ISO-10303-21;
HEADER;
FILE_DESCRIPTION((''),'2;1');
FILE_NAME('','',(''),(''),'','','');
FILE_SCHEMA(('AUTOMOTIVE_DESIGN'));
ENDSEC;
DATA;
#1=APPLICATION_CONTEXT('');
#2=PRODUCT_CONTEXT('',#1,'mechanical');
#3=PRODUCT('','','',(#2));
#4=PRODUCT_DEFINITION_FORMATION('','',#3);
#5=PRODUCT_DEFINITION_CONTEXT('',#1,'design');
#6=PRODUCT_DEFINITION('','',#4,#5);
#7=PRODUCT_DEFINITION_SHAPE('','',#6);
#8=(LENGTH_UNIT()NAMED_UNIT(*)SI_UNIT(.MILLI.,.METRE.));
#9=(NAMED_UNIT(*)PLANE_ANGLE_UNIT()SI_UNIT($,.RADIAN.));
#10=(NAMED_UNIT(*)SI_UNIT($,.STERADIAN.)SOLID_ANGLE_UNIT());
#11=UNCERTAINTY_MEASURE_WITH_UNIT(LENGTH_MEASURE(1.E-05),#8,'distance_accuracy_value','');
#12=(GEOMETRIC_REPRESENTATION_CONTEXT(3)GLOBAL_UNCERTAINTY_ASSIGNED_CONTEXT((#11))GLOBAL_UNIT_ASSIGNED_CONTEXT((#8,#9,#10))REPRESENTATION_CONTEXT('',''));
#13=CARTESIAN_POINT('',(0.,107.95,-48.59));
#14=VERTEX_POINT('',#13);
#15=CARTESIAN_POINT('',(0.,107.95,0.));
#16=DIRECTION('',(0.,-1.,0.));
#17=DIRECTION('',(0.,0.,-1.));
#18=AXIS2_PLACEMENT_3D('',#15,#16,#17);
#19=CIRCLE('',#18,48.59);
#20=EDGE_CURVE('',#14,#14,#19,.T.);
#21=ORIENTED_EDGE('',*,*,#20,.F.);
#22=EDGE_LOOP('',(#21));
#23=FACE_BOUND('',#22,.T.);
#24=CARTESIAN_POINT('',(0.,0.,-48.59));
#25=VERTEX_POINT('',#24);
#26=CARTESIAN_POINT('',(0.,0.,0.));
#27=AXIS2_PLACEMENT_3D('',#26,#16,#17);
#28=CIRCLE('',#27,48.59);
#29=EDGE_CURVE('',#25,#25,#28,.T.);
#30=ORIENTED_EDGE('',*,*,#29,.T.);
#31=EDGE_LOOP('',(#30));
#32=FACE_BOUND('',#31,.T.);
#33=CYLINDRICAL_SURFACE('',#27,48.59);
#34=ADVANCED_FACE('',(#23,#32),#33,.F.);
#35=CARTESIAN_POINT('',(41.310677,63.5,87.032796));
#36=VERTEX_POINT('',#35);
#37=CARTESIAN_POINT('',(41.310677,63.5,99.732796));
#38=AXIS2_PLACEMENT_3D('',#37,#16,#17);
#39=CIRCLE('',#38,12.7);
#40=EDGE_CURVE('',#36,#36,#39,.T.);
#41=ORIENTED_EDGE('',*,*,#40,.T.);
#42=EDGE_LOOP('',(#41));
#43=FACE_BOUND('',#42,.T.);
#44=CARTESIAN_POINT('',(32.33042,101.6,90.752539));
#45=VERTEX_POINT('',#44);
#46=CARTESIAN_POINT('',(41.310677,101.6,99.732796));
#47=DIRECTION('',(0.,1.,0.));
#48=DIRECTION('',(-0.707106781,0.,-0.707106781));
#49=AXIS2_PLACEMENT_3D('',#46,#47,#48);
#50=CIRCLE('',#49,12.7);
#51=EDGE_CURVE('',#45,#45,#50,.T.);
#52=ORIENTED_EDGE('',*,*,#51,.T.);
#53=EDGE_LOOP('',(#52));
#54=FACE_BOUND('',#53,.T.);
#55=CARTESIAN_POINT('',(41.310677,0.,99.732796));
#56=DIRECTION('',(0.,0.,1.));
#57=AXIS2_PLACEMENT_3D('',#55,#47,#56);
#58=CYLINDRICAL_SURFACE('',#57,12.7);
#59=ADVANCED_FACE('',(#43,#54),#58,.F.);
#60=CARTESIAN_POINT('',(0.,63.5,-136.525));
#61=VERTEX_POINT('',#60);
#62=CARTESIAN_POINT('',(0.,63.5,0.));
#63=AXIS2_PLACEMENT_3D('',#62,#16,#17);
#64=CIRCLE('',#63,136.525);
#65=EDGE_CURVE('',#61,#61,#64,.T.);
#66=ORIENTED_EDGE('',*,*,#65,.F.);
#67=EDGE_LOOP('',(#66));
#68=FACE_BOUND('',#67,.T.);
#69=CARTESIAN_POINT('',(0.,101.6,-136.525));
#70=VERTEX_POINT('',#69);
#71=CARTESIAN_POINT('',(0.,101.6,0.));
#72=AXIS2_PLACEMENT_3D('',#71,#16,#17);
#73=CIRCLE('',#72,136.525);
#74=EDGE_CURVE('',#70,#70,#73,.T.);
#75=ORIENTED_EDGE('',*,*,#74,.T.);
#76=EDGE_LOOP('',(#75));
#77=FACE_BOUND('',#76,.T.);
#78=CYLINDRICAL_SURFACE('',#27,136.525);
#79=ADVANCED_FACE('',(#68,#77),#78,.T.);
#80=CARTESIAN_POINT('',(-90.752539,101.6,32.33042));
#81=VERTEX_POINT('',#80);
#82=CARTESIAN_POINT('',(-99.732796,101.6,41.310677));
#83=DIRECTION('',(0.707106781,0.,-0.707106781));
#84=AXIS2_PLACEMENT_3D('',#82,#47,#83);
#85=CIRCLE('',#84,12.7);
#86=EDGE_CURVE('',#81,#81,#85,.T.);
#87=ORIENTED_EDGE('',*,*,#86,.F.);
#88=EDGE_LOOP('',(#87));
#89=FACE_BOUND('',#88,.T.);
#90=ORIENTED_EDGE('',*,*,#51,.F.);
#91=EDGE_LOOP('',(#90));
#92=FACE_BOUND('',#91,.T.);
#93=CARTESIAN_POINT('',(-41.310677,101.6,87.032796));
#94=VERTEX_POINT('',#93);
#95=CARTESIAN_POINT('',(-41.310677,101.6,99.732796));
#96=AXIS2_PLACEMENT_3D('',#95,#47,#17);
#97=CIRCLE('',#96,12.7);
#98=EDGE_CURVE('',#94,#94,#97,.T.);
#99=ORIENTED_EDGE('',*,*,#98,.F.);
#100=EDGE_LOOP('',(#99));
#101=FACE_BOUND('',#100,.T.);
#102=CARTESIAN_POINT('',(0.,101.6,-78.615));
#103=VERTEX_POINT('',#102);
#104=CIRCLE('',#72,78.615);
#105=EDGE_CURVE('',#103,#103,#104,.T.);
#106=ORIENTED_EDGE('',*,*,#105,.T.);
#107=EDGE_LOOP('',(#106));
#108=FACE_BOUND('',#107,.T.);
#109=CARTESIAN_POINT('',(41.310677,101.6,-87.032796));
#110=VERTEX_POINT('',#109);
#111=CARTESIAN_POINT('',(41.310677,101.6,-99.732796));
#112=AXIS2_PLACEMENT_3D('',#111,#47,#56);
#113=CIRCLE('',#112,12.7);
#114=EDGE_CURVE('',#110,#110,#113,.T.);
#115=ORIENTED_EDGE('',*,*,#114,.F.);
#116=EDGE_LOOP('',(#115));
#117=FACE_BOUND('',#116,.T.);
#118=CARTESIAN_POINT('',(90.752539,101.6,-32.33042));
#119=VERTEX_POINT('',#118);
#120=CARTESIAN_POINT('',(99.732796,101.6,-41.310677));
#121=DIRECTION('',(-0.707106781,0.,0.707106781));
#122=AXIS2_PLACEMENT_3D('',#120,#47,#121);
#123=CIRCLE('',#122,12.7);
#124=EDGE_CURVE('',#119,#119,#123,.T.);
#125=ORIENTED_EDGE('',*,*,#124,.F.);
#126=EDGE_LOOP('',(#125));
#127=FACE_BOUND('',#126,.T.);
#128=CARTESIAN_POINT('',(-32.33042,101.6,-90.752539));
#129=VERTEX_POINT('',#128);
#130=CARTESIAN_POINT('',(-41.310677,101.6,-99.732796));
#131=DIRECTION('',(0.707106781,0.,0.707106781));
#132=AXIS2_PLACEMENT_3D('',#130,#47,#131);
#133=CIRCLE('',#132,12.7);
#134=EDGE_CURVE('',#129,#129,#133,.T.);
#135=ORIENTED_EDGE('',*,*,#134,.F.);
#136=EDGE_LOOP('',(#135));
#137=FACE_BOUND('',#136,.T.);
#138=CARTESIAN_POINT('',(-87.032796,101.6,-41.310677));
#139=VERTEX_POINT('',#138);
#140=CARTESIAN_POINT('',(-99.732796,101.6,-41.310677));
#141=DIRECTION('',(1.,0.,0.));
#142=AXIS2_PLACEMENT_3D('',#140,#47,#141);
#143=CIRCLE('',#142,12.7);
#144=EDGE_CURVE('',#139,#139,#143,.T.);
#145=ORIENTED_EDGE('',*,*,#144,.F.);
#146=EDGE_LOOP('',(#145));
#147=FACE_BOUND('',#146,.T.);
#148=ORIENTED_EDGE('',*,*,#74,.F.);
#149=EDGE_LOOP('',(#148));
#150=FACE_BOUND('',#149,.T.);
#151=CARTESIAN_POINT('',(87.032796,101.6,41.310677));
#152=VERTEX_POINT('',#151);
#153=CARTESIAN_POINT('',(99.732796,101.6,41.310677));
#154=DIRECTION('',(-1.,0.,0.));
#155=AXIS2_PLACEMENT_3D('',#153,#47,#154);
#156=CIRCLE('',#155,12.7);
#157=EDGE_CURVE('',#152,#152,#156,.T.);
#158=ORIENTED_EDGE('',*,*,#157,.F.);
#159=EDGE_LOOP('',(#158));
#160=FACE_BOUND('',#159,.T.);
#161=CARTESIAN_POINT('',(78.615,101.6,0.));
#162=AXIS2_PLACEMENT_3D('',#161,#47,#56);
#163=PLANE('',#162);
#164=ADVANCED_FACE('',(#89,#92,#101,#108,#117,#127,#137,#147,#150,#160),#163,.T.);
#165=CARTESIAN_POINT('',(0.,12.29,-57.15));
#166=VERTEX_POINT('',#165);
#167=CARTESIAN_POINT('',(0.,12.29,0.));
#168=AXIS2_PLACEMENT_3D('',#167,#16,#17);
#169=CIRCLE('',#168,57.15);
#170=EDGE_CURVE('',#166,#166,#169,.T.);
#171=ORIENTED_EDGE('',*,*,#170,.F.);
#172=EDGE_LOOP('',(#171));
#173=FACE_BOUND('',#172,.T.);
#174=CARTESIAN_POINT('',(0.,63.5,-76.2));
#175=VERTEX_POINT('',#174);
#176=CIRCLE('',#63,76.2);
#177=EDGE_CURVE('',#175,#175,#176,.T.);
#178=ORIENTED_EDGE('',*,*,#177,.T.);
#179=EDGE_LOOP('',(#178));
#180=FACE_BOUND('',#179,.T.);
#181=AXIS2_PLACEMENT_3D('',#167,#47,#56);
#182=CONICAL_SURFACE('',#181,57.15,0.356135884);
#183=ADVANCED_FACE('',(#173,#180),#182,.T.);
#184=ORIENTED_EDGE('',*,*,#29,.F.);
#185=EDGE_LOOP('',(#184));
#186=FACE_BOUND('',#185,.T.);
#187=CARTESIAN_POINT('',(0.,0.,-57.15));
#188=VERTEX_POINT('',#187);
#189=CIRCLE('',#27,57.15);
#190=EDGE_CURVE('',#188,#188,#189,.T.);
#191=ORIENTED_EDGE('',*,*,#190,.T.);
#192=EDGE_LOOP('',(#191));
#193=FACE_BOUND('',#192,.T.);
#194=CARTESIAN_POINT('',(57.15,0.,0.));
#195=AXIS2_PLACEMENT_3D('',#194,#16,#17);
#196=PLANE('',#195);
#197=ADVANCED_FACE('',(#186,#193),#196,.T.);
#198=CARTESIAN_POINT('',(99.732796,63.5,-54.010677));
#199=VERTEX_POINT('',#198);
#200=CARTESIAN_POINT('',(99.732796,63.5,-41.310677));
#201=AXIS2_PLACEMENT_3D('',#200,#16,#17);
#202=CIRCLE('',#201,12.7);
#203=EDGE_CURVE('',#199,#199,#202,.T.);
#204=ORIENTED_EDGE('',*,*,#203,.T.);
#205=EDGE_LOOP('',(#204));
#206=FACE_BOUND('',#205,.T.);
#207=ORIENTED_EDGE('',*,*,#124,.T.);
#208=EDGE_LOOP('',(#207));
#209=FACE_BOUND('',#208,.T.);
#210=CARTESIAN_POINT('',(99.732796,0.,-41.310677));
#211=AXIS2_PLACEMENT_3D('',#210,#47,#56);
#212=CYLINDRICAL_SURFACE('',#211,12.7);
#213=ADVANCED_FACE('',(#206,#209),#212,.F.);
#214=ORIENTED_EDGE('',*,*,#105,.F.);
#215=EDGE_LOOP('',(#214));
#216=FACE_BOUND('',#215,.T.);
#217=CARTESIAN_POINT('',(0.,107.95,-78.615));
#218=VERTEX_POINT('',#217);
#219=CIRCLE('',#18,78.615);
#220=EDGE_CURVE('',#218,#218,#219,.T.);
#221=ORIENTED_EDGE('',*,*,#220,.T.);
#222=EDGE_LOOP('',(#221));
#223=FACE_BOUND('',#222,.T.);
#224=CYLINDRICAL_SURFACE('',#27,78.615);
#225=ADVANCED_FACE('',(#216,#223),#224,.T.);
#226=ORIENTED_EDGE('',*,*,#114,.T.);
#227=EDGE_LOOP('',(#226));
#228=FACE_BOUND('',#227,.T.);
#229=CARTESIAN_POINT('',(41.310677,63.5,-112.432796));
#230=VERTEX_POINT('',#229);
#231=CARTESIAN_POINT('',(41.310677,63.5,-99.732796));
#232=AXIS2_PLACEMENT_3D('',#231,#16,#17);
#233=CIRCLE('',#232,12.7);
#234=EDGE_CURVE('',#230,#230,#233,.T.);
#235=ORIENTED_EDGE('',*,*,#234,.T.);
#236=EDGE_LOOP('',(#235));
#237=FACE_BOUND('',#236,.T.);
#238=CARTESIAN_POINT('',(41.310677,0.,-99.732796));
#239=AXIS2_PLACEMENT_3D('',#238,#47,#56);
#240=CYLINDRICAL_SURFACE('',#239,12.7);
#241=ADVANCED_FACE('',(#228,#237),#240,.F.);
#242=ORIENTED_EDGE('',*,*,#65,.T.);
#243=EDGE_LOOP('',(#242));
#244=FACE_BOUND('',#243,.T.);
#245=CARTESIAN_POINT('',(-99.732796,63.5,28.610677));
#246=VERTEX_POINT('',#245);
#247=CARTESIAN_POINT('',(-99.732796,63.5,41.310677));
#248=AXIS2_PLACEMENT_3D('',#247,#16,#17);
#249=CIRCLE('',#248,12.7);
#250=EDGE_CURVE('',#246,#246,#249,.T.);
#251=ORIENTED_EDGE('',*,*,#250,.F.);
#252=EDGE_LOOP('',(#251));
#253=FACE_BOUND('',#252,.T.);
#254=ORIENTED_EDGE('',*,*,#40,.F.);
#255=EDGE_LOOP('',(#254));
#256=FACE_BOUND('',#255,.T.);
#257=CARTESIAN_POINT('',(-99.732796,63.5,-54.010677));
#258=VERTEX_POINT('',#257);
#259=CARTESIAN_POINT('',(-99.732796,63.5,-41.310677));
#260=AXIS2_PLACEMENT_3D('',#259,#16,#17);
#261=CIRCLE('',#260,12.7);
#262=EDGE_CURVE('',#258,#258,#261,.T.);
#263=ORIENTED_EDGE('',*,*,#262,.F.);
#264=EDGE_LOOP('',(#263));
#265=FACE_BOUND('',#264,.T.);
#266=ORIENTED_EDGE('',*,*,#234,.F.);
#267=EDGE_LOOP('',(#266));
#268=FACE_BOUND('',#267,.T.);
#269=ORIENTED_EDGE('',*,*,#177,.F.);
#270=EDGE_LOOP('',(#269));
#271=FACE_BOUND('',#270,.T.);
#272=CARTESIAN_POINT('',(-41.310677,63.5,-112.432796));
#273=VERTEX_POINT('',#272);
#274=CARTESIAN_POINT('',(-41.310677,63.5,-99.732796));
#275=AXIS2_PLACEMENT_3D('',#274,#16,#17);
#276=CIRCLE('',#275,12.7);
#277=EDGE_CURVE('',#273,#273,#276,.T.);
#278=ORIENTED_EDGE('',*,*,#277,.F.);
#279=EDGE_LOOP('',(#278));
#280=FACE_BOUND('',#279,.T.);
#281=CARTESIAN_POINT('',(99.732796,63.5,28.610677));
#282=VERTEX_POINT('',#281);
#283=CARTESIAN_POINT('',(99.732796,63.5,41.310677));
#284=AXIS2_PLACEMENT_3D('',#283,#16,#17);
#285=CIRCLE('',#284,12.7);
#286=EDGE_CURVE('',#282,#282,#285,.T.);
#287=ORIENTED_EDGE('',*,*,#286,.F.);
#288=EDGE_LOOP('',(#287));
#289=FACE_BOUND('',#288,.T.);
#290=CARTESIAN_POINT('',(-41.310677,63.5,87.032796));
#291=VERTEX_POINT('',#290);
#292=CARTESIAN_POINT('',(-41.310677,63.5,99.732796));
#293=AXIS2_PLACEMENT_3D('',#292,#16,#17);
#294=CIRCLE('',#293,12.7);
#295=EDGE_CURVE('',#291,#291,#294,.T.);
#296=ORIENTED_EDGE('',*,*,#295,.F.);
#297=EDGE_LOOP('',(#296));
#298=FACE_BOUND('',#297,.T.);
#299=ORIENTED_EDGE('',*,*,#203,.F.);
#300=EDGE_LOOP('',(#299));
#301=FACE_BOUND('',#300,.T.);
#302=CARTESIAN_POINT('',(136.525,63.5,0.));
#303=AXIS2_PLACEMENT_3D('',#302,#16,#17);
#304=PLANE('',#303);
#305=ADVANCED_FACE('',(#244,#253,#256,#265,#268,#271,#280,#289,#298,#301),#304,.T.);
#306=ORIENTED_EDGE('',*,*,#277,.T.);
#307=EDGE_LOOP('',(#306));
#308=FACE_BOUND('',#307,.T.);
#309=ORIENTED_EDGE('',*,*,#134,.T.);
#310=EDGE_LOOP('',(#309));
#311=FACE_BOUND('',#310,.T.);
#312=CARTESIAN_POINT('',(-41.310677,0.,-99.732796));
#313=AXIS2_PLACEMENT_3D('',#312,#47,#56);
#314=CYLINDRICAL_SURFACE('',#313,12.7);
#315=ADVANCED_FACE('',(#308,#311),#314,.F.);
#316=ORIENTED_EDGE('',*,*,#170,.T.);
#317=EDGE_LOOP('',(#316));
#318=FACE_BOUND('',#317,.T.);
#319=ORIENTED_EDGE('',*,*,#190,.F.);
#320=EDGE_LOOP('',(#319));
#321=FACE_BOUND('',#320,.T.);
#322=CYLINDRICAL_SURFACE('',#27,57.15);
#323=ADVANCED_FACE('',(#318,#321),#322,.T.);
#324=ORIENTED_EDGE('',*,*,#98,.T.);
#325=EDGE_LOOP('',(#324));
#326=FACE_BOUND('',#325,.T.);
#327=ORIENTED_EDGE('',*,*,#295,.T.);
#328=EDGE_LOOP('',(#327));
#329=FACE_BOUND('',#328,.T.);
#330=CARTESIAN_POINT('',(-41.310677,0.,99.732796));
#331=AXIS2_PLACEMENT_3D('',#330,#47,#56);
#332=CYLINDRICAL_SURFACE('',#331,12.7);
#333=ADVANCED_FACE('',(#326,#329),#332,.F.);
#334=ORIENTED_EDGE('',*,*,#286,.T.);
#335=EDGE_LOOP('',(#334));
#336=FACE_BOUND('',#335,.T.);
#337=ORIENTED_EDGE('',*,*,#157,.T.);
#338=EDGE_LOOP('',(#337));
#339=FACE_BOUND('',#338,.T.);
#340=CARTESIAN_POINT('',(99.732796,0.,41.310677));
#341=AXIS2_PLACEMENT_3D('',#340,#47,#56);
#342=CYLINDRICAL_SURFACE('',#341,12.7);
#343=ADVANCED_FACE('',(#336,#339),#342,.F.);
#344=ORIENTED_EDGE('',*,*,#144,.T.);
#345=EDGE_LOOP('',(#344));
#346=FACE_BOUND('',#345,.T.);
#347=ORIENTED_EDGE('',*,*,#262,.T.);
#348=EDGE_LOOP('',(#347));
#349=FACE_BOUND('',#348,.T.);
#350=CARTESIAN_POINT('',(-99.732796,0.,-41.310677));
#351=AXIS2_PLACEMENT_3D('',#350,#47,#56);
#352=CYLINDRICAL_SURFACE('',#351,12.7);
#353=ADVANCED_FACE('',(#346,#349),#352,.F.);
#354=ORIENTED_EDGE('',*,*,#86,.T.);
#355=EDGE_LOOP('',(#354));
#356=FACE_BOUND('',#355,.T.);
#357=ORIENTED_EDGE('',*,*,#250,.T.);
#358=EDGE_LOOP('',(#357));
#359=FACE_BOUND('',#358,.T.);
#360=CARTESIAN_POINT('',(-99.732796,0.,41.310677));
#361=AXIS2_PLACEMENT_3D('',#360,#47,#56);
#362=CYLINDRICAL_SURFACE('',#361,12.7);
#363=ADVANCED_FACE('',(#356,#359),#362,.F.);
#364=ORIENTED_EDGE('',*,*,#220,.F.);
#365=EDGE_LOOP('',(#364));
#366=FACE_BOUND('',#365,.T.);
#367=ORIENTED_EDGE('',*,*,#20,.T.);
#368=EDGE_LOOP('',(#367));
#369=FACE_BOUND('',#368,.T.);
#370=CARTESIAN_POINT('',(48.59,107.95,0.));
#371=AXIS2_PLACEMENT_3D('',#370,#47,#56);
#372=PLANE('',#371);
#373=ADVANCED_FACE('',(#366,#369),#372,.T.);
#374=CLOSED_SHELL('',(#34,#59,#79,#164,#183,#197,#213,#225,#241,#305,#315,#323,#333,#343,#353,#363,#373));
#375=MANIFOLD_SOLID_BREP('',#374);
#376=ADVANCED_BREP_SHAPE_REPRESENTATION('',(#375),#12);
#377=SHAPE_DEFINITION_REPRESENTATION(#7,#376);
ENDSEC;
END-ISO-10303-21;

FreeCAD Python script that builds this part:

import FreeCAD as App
import Part
import Sketcher

V = App.Vector
Q = App.Units.Quantity


def add_polygon(sketch, points):
    """Adds a closed chain of lines whose ends are joined by coincident constraints."""
    first, n = sketch.GeometryCount, len(points)
    for a, b in zip(points, points[1:] + points[:1]):
        sketch.addGeometry(Part.LineSegment(App.Vector(*a, 0), App.Vector(*b, 0)), False)
    for i in range(n):
        sketch.addConstraint(Sketcher.Constraint("Coincident", first + i, 2, first + (i + 1) % n, 1))

doc = App.newDocument("Part")
body = doc.addObject("PartDesign::Body", "Body")

# Sketch on XY plane
sketch1 = doc.addObject("Sketcher::SketchObject", "Sketch")
body.addObject(sketch1)
sketch1.AttachmentSupport = (doc.XY_Plane, [""])
sketch1.MapMode = "FlatFace"
add_polygon(sketch1, [(49, 108), (49, 0), (57, 0), (57, 12), (76, 64), (137, 64), (137, 102), (79, 102), (79, 108)])  # lines 0-8
sketch1.addConstraint([
    Sketcher.Constraint("Vertical", 0),
    Sketcher.Constraint("Horizontal", 1),
    Sketcher.Constraint("Vertical", 2),
    Sketcher.Constraint("Horizontal", 4),
    Sketcher.Constraint("Vertical", 5),
    Sketcher.Constraint("Horizontal", 6),
    Sketcher.Constraint("Vertical", 7),
    Sketcher.Constraint("Horizontal", 8),
    Sketcher.Constraint("PointOnObject", 0, 2, -1),
    Sketcher.Constraint("DistanceY", 5, 1, 5, 2, Q("1.5 in")),
    Sketcher.Constraint("DistanceX", -1, 1, 3, 2, Q("3 in")),
    Sketcher.Constraint("DistanceY", -1, 1, 5, 2, Q("4 in")),
    Sketcher.Constraint("DistanceY", 0, 2, 0, 1, Q("4.25 in")),
    Sketcher.Constraint("DistanceX", 4, 1, 4, 2, Q("2.375 in")),
    Sketcher.Constraint("DistanceX", -1, 1, 1, 2, Q("2.25 in")),
    Sketcher.Constraint("DistanceX", 1, 1, 1, 2, 8.56),
    Sketcher.Constraint("DistanceX", 6, 2, 6, 1, 57.91),
    Sketcher.Constraint("DistanceY", 2, 1, 2, 2, 12.29),
])
revolution = doc.addObject("PartDesign::Revolution", "Revolution")
body.addObject(revolution)
revolution.Profile = sketch1
revolution.ReferenceAxis = (sketch1, ["V_Axis"])
revolution.Angle = 360

# Sketch on XZ plane
sketch2 = doc.addObject("Sketcher::SketchObject", "Sketch001")
body.addObject(sketch2)
sketch2.AttachmentSupport = (doc.XZ_Plane, [""])
sketch2.MapMode = "FlatFace"
sketch2.AttachmentOffset = App.Placement(V(0, 0, -4 * 25.4), App.Rotation())
sketch2.addGeometry(Part.Circle(V(41, -100, 0), V(0, 0, 1), 13), False)
sketch2.addConstraint([
    Sketcher.Constraint("Diameter", 0, Q("1 in")),
    Sketcher.Constraint("DistanceX", -1, 1, 0, 3, 41.310677),
    Sketcher.Constraint("DistanceY", 0, 3, -1, 1, 99.732796),
])
pocket1 = doc.addObject("PartDesign::Pocket", "Pocket")
body.addObject(pocket1)
pocket1.Profile = sketch2
pocket1.Type = "ThroughAll"
pocket1.Reversed = True
doc.recompute()

polarpattern = doc.addObject("PartDesign::PolarPattern", "PolarPattern")
body.addObject(polarpattern)
polarpattern.Originals = [pocket1]
polarpattern.Axis = (doc.Y_Axis, [""])
polarpattern.Angle = 360
polarpattern.Occurrences = 8
body.Tip = polarpattern

doc.recompute()
